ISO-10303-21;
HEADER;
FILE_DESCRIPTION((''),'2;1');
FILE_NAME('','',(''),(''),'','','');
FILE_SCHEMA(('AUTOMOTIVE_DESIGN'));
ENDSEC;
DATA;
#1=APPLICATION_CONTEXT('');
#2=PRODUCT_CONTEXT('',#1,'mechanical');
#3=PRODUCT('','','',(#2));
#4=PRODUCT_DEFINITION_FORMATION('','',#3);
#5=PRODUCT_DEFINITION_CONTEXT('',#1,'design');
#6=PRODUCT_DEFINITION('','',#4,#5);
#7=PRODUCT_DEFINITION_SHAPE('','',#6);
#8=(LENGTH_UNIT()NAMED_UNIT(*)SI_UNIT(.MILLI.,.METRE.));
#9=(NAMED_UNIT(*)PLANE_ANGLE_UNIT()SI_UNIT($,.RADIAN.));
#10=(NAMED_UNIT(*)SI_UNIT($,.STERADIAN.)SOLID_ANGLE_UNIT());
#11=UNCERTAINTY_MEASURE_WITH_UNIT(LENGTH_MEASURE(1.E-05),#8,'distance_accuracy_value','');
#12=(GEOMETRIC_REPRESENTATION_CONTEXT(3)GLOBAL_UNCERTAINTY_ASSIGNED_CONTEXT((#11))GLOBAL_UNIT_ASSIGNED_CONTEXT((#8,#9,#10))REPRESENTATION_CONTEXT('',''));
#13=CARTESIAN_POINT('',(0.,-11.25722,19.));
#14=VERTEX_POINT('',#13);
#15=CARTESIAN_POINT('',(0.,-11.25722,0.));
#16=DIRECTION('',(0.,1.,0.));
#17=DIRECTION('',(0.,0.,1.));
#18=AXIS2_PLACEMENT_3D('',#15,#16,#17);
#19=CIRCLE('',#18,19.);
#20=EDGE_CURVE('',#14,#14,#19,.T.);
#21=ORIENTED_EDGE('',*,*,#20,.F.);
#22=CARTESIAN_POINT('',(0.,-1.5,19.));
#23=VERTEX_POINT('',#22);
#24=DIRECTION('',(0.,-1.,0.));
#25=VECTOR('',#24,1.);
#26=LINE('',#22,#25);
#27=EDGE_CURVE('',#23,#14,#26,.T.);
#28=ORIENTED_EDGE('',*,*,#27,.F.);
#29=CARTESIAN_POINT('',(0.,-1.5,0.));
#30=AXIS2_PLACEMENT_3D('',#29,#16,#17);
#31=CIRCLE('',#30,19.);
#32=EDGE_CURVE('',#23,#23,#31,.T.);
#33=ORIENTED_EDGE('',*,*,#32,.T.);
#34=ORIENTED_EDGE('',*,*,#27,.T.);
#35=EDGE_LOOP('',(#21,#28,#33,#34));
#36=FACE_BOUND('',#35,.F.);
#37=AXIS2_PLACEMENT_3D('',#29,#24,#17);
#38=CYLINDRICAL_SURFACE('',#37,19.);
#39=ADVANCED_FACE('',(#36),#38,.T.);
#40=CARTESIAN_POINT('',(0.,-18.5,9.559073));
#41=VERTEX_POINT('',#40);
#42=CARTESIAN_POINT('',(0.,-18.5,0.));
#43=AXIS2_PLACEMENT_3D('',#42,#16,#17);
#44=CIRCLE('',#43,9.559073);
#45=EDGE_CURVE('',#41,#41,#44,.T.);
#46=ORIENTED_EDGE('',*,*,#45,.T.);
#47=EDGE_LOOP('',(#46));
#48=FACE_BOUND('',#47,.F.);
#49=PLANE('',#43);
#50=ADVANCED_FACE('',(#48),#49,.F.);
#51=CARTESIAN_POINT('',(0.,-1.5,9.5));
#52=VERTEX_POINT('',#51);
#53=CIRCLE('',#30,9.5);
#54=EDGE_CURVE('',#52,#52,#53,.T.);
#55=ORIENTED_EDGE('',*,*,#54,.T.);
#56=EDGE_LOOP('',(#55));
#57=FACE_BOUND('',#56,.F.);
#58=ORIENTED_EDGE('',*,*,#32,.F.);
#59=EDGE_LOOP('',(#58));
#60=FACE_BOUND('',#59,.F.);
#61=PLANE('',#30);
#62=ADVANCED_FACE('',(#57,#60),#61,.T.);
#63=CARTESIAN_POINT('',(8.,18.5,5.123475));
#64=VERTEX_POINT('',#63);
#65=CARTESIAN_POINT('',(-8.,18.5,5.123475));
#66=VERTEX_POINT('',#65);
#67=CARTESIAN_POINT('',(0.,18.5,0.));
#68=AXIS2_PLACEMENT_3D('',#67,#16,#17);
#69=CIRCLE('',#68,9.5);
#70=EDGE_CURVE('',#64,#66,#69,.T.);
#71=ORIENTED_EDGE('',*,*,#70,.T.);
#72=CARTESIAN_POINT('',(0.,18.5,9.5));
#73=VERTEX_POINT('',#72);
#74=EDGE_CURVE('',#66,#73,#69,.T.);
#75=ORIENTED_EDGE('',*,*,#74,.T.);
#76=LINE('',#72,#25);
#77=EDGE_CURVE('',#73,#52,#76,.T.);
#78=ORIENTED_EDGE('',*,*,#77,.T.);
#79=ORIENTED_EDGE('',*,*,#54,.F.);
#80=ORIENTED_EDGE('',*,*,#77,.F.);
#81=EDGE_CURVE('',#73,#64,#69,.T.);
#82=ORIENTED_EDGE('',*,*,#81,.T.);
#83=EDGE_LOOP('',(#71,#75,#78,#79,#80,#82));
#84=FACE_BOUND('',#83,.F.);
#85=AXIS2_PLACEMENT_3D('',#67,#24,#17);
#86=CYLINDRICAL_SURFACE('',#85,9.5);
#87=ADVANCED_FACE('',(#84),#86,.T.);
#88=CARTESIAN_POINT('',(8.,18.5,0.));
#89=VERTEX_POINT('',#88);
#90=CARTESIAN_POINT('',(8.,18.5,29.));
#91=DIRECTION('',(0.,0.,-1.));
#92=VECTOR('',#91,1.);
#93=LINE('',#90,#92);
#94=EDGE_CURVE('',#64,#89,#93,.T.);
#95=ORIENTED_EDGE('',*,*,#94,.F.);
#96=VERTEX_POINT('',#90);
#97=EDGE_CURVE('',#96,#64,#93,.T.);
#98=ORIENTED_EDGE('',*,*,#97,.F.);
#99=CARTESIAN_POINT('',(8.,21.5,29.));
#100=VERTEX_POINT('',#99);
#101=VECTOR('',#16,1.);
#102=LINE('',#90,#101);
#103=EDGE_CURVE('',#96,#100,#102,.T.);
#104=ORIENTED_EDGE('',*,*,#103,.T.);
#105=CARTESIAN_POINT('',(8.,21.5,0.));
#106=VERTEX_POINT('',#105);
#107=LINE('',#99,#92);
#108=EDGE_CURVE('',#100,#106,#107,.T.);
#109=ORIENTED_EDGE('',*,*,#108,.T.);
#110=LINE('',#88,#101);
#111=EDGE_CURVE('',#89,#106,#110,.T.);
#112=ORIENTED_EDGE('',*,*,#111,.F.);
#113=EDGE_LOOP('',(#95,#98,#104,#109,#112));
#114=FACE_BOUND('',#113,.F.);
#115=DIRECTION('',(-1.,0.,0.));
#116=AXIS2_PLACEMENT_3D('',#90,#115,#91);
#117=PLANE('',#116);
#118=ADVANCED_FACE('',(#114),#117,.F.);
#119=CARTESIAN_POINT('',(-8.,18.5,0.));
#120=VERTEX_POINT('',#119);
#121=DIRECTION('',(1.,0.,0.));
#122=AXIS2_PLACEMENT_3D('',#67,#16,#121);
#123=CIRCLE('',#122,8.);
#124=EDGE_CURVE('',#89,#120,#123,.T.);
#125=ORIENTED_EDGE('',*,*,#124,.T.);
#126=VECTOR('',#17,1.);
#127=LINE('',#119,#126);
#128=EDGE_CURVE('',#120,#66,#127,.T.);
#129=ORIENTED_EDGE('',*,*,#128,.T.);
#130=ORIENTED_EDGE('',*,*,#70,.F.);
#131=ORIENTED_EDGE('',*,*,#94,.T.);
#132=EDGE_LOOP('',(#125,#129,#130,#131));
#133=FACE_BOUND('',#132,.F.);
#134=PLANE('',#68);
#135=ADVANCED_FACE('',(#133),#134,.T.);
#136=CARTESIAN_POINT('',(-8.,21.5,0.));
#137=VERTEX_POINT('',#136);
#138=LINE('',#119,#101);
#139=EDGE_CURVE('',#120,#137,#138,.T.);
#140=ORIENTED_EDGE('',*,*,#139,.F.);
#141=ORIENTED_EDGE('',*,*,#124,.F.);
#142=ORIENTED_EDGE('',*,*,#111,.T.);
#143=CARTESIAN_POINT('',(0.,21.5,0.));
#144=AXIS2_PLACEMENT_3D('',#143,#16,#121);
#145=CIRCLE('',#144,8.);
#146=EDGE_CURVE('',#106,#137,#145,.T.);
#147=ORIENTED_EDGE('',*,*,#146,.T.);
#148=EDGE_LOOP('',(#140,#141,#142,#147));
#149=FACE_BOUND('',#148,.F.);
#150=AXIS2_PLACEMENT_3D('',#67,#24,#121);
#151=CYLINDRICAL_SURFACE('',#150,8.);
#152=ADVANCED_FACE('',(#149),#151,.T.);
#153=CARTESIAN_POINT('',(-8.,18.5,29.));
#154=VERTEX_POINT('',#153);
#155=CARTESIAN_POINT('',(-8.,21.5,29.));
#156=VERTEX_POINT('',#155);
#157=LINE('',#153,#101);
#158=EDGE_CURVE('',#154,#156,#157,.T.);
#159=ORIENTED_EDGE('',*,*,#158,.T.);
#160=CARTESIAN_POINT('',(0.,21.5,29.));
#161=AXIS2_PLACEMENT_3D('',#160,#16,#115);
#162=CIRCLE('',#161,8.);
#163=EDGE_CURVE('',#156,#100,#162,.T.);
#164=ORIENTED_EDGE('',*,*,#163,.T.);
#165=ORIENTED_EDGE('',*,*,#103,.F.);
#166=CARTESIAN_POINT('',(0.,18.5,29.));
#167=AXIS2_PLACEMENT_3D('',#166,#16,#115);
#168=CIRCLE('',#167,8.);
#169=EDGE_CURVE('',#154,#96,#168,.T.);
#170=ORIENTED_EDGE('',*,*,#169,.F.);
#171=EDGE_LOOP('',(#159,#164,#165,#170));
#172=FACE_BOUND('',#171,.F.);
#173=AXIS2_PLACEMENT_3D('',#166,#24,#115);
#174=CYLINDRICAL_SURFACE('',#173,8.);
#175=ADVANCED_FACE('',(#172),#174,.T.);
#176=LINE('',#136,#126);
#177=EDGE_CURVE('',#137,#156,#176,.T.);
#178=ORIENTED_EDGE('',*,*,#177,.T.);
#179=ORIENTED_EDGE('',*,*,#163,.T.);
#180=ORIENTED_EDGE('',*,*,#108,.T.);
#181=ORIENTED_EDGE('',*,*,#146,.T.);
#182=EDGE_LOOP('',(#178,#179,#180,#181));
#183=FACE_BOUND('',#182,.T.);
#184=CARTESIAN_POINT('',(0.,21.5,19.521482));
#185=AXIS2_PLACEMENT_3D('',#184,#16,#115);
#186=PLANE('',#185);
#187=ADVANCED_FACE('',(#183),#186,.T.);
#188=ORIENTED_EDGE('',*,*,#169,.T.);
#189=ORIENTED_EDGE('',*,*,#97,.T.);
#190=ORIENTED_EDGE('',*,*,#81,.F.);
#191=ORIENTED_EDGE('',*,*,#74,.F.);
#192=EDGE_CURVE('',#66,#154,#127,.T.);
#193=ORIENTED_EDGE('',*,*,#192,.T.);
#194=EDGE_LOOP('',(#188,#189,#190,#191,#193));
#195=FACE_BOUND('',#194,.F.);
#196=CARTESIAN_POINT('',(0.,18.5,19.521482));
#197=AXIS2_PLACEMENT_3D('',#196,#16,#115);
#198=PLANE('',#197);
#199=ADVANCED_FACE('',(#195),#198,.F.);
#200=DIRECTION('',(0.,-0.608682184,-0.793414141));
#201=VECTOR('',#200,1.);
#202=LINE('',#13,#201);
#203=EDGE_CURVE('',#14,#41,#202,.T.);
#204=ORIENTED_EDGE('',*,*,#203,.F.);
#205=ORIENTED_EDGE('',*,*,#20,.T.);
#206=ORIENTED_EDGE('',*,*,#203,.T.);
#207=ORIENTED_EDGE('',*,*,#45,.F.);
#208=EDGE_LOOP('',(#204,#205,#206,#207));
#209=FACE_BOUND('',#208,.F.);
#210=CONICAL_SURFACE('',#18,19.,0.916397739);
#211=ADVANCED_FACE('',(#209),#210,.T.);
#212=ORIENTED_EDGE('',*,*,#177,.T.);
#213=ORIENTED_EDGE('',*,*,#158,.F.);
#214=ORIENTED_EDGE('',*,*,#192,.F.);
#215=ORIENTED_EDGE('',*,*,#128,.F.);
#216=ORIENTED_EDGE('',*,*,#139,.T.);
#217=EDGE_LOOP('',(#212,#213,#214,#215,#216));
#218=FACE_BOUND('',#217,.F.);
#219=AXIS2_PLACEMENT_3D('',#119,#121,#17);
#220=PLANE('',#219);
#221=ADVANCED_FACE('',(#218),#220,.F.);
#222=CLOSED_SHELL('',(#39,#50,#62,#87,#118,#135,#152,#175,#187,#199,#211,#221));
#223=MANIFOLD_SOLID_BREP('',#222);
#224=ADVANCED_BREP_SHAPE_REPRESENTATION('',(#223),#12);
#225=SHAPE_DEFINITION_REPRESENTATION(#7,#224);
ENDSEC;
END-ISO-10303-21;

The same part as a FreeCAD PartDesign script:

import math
import FreeCAD as App
import Part
import Sketcher
from FreeCAD import Vector
Q = App.Units.Quantity


def add_polygon(sketch, points):
    """Adds a closed chain of lines whose ends are joined by coincident constraints."""
    first, n = sketch.GeometryCount, len(points)
    for a, b in zip(points, points[1:] + points[:1]):
        sketch.addGeometry(Part.LineSegment(App.Vector(*a, 0), App.Vector(*b, 0)), False)
    for i in range(n):
        sketch.addConstraint(Sketcher.Constraint("Coincident", first + i, 2, first + (i + 1) % n, 1))

doc = App.newDocument("Part")
body = doc.addObject("PartDesign::Body", "Body")

# Sketch on YZ plane
sketch1 = body.newObject("Sketcher::SketchObject", "Sketch")
sketch1.AttachmentSupport = (doc.getObject("YZ_Plane"), [""])
sketch1.MapMode = "FlatFace"
add_polygon(sketch1, [(-18, 10), (-18, 0), (18, 0), (18, 10), (-2, 10), (-2, 19), (-11, 19)])  # lines 0-6
sketch1.addConstraint([
    Sketcher.Constraint("Vertical", 0),
    Sketcher.Constraint("Horizontal", 1),
    Sketcher.Constraint("Vertical", 2),
    Sketcher.Constraint("Horizontal", 3),
    Sketcher.Constraint("Vertical", 4),
    Sketcher.Constraint("Horizontal", 5),
    Sketcher.Constraint("Symmetric", 0, 2, 1, 2, -1, 1),
    Sketcher.Constraint("Equal", 2, 4),
    Sketcher.Constraint("DistanceX", 1, 1, 1, 2, Q("37 mm")),
    Sketcher.Constraint("DistanceX", 3, 2, 3, 1, Q("20 mm")),
    Sketcher.Constraint("DistanceY", 2, 1, 2, 2, Q("9.5 mm")),
    Sketcher.Constraint("DistanceX", 5, 2, 5, 1, Q("9.75722 mm")),
    Sketcher.Constraint("DistanceY", 0, 2, 0, 1, Q("9.559073 mm")),
])
revolution = body.newObject("PartDesign::Revolution", "Revolution")
revolution.Profile = sketch1
revolution.ReferenceAxis = (sketch1, ["H_Axis"])
revolution.Angle = 360

# Sketch on XZ plane
sketch2 = body.newObject("Sketcher::SketchObject", "Sketch001")
sketch2.AttachmentSupport = (doc.getObject("XZ_Plane"), [""])
sketch2.MapMode = "FlatFace"
sketch2.AttachmentOffset = App.Placement(Vector(0, 0, -18.5), App.Rotation())
sketch2.addGeometry([
    Part.ArcOfCircle(Part.Circle(Vector(0, 29, 0), Vector(0, 0, 1), 8), math.radians(0), math.radians(180)),
    Part.LineSegment(Vector(8, 29, 0), Vector(8, 0, 0)),
    Part.ArcOfCircle(Part.Circle(Vector(0, 0, 0), Vector(0, 0, 1), 8), math.radians(180), math.radians(360)),
    Part.LineSegment(Vector(-8, 0, 0), Vector(-8, 29, 0)),
], False)
sketch2.addConstraint([
    Sketcher.Constraint("Tangent", 0, 1, 1, 1),
    Sketcher.Constraint("Tangent", 1, 2, 2, 2),
    Sketcher.Constraint("Tangent", 2, 1, 3, 1),
    Sketcher.Constraint("Tangent", 3, 2, 0, 2),
    Sketcher.Constraint("Vertical", 1),
    Sketcher.Constraint("Vertical", 3),
    Sketcher.Constraint("Coincident", 2, 3, -1, 1),
    Sketcher.Constraint("Radius", 0, Q("8 mm")),
    Sketcher.Constraint("DistanceY", 1, 2, 1, 1, Q("29 mm")),
])
pad1 = body.newObject("PartDesign::Pad", "Pad")
pad1.Profile = sketch2
pad1.Length = 3
pad1.Reversed = True

doc.recompute()
